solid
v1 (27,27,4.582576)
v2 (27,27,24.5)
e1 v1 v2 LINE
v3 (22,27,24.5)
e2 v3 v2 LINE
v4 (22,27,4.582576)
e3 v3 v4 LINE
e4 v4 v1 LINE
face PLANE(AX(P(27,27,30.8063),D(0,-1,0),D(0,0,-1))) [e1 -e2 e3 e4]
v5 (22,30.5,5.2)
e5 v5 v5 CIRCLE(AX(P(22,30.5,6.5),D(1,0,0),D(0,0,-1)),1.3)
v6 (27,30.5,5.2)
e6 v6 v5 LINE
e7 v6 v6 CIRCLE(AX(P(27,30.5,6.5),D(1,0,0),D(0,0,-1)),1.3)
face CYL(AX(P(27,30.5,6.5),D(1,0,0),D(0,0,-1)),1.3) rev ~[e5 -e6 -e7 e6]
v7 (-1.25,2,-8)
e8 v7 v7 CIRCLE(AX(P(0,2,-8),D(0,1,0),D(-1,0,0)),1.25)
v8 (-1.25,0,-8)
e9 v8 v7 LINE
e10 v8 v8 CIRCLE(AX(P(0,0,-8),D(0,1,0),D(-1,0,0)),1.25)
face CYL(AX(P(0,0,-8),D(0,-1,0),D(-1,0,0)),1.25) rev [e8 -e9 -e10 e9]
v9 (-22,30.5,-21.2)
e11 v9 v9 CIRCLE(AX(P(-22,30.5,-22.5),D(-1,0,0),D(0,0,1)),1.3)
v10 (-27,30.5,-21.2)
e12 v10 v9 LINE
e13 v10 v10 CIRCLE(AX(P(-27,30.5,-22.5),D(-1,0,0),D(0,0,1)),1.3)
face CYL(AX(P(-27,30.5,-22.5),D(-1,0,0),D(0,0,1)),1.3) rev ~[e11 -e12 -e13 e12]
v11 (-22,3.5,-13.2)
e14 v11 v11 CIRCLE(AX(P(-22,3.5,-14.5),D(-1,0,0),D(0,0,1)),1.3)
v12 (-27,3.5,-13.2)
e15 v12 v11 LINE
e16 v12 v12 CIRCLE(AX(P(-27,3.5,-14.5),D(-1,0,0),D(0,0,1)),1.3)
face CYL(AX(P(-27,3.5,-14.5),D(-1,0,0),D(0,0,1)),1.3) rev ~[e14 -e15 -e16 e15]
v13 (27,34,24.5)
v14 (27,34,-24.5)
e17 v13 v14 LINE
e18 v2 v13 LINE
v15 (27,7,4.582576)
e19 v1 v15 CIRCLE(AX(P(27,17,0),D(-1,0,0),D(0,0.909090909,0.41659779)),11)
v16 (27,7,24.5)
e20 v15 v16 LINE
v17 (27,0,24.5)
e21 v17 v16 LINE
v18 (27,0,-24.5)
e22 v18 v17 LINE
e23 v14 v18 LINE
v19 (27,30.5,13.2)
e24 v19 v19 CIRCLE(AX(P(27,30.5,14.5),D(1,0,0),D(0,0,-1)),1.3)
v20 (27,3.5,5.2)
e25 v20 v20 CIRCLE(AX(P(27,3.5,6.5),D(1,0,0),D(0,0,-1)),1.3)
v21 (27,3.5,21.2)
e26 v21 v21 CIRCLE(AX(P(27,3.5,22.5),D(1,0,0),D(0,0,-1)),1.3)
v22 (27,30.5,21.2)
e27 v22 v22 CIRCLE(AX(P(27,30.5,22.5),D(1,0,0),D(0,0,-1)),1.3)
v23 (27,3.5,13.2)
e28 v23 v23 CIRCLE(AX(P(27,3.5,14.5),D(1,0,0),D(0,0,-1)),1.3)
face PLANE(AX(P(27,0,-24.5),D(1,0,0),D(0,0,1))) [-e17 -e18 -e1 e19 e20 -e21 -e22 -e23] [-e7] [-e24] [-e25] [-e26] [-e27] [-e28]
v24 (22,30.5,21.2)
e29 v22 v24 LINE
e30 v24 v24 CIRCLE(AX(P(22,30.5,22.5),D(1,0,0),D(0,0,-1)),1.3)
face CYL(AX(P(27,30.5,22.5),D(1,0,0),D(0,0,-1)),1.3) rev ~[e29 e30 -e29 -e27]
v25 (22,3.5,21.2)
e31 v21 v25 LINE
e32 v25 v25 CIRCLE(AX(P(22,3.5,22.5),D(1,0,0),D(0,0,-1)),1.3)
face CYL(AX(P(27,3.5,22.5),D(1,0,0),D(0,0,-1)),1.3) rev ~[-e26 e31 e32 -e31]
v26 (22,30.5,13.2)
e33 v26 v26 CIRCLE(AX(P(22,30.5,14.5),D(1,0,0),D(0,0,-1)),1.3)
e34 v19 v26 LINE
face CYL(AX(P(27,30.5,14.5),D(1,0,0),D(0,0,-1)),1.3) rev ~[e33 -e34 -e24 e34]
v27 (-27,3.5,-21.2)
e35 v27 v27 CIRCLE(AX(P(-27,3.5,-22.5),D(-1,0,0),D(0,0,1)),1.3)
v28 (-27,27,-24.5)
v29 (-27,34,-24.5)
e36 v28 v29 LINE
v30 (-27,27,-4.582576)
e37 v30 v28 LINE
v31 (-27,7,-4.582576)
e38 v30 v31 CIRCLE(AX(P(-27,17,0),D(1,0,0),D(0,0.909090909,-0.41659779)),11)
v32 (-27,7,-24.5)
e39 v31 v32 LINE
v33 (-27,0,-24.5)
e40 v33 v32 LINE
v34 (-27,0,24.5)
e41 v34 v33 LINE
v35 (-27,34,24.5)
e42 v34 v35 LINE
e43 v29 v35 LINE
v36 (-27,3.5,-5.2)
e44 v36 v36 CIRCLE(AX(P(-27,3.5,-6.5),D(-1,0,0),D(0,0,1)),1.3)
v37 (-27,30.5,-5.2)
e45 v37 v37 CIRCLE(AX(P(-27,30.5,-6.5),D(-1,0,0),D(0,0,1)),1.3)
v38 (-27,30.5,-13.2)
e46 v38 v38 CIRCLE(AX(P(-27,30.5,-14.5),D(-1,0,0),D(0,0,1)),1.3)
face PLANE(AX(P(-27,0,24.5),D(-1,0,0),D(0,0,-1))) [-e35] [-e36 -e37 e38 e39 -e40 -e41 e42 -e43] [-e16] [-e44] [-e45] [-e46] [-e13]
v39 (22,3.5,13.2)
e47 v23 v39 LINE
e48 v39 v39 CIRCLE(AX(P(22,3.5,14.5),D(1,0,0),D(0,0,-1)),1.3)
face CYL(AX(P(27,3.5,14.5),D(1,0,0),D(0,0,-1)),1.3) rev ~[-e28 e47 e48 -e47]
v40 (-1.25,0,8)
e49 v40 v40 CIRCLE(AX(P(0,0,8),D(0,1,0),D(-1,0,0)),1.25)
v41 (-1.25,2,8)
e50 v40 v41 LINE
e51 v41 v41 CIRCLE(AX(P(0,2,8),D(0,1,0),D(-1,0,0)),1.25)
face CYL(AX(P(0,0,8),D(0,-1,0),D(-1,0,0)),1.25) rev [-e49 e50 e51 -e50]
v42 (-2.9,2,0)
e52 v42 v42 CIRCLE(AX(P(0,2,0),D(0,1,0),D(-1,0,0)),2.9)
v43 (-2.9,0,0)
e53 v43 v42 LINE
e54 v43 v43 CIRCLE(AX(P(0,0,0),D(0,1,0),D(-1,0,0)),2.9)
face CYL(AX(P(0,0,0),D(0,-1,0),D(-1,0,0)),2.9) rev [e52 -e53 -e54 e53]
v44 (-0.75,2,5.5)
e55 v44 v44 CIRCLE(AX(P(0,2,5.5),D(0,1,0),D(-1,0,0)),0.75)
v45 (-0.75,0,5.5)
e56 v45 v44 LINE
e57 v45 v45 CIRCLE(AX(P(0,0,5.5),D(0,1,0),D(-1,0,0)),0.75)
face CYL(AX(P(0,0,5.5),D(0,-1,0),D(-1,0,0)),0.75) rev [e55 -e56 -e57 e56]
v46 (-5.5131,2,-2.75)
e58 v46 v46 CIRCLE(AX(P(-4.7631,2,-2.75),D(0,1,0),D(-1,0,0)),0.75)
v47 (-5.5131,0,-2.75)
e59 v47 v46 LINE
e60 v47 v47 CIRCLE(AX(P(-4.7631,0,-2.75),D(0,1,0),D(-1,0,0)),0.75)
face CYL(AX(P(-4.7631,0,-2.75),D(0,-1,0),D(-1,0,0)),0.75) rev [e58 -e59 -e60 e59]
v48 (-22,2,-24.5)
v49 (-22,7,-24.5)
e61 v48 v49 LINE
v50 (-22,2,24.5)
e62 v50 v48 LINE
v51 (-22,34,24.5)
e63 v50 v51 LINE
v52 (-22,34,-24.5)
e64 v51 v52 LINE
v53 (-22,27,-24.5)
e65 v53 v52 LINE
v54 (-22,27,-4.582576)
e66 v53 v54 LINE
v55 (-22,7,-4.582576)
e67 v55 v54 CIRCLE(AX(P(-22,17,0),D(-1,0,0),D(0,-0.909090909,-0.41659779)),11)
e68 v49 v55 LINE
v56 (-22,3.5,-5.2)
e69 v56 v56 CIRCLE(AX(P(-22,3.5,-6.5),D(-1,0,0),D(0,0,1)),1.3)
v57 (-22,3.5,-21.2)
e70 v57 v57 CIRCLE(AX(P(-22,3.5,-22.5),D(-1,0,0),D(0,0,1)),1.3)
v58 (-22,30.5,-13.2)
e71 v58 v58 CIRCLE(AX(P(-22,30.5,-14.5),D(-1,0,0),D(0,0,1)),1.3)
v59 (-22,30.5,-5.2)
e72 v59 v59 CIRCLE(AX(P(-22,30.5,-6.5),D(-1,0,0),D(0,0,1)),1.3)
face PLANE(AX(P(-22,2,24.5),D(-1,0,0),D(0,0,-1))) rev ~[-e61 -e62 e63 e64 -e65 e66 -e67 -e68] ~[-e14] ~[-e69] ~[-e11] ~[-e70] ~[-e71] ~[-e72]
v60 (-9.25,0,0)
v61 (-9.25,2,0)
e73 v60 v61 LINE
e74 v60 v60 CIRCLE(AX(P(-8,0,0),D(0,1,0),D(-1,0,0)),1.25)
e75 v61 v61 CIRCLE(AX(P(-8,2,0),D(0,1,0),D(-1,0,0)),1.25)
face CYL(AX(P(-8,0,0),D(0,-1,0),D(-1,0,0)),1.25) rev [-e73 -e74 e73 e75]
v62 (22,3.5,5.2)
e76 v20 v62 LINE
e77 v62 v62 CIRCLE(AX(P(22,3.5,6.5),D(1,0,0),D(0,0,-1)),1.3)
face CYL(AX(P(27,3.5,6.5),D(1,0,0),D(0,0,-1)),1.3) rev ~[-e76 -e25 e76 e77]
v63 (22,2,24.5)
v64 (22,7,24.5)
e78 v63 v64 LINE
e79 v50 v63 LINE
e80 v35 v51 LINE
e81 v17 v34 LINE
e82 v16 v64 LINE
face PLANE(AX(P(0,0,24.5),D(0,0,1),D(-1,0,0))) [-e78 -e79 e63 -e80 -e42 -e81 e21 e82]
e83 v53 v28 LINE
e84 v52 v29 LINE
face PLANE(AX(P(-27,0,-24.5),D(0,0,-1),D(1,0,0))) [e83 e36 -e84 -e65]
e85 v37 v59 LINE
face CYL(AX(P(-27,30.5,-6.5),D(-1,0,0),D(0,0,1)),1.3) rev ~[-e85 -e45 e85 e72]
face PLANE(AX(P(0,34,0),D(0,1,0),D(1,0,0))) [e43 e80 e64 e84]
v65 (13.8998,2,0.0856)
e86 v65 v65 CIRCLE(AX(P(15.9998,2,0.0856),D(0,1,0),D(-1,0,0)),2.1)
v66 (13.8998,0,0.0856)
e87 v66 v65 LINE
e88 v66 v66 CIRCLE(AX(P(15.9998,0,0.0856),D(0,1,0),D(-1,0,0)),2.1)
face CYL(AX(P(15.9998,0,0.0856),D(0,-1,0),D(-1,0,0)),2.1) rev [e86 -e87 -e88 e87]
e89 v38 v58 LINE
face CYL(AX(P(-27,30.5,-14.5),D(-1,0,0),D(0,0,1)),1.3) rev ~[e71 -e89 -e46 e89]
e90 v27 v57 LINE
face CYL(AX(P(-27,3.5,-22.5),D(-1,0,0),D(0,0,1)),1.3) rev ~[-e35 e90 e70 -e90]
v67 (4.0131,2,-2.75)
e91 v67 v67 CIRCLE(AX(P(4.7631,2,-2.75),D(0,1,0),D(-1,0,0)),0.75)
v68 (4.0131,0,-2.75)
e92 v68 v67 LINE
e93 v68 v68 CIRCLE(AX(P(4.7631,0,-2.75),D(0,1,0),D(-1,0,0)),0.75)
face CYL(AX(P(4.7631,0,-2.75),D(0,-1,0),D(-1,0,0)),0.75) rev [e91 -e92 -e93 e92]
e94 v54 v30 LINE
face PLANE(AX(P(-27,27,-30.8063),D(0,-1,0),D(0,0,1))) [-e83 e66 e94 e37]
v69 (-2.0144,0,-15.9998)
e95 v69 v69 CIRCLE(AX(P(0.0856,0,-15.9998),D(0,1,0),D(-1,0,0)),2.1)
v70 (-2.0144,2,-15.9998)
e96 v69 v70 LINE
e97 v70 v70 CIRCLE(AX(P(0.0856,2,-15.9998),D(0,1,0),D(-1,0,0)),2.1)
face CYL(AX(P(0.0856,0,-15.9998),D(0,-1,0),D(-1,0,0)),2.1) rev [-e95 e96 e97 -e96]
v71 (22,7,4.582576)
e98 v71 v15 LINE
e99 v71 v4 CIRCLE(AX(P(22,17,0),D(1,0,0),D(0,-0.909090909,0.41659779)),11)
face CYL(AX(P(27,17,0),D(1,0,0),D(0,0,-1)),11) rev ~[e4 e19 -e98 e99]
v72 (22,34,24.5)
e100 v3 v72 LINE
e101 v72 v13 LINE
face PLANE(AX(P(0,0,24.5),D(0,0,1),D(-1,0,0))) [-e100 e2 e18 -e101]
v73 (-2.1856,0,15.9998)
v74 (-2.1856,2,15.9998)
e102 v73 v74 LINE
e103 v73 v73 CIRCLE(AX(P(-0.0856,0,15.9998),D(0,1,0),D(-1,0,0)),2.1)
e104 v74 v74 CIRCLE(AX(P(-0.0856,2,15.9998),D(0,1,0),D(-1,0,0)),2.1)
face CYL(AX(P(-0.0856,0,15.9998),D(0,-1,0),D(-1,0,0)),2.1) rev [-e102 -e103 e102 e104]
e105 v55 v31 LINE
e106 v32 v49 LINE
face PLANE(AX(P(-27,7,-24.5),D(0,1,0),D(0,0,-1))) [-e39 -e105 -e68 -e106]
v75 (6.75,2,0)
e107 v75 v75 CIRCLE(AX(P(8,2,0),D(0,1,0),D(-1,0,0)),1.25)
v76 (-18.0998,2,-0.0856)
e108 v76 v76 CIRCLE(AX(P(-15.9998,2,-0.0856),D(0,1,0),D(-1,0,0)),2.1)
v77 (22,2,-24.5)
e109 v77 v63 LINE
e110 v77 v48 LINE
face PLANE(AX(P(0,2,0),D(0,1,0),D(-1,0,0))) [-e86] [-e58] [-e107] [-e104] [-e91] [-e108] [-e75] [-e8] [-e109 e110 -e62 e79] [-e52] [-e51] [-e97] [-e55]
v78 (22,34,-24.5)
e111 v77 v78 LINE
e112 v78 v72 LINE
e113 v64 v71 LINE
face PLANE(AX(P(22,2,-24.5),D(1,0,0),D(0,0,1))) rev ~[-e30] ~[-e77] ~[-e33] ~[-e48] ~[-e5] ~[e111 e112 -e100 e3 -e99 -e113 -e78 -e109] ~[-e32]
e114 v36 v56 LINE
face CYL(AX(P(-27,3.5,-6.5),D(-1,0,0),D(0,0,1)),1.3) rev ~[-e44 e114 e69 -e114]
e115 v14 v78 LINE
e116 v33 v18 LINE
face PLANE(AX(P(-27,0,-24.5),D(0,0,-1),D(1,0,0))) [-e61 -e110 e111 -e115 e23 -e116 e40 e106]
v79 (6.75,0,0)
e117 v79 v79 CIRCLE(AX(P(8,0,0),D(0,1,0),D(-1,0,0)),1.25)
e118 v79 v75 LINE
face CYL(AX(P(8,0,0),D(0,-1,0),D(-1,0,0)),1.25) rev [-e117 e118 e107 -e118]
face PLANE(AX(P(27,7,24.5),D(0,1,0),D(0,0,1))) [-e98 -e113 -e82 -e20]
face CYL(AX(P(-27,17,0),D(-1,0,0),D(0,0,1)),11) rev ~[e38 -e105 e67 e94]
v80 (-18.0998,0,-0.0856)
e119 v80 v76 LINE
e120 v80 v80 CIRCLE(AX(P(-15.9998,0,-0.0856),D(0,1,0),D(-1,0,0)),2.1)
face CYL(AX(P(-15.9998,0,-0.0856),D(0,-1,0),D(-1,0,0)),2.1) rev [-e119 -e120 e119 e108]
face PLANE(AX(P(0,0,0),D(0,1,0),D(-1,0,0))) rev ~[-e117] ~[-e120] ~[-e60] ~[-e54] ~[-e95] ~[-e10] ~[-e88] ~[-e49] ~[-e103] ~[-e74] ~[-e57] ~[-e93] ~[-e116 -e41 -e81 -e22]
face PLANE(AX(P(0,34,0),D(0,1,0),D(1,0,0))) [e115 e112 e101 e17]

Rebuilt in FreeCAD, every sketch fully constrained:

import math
import FreeCAD as App
import Part
import Sketcher

V = App.Vector
Q = App.Units.Quantity


def add_polygon(sketch, points):
    """Adds a closed chain of lines whose ends are joined by coincident constraints."""
    first, n = sketch.GeometryCount, len(points)
    for a, b in zip(points, points[1:] + points[:1]):
        sketch.addGeometry(Part.LineSegment(App.Vector(*a, 0), App.Vector(*b, 0)), False)
    for i in range(n):
        sketch.addConstraint(Sketcher.Constraint("Coincident", first + i, 2, first + (i + 1) % n, 1))

doc = App.newDocument("Part")
params = doc.addObject("Spreadsheet::Sheet", "Params")
for row, (alias, value) in enumerate([
    ("sketch1_width", "54 mm"),
    ("sketch1_height", "49 mm"),
    ("sketch1_diameter", "4.2 mm"),
    ("sketch1_diameter2", "2.5 mm"),
    ("sketch1_diameter3", "1.5 mm"),
    ("pad1_length", "2 mm"),
    ("sketch2_width", "5 mm"),
    ("sketch2_height", "49 mm"),
    ("pad2_length", "32 mm"),
    ("sketch3_diameter", "2.6 mm"),
    ("sketch3_radius", "0.8 mm"),
    ("sketch3_radius2", "9.15 mm"),
    ("sketch3_radius3", "1.75 mm"),
    ("pocket1_length", "5 mm"),
    ("sketch4_diameter", "22 mm"),
    ("pocket2_length", "5 mm"),
    ("sketch5_diameter", "2.6 mm"),
    ("sketch5_radius", "0.8 mm"),
    ("sketch5_radius2", "9.15 mm"),
    ("sketch5_radius3", "1.75 mm"),
    ("pocket3_length", "5 mm"),
    ("sketch6_diameter", "22 mm"),
    ("pocket4_length", "5 mm"),
], start=1):
    params.set(f"A{row}", alias)
    params.set(f"B{row}", "=" + value)
    params.setAlias(f"B{row}", alias)

body = doc.addObject("PartDesign::Body", "Body")

sketch1 = body.newObject("Sketcher::SketchObject", "Sketch")
sketch1.AttachmentSupport = (doc.getObject("XZ_Plane"), [""])
sketch1.MapMode = "FlatFace"
add_polygon(sketch1, [(-27, -24.5), (-27, 24.5), (27, 24.5), (27, -24.5)])
sketch1.addGeometry(Part.Circle(V(0.1, -16, 0), V(0, 0, 1), 2.1), False)
sketch1.addGeometry(Part.Circle(V(8, 0, 0), V(0, 0, 1), 1.2), False)
sketch1.addGeometry(Part.Circle(V(4.8, -2.8, 0), V(0, 0, 1), 0.8), False)
sketch1.addGeometry(Part.Circle(V(0, -8, 0), V(0, 0, 1), 1.2), False)
sketch1.addGeometry(Part.Circle(V(0, 0, 0), V(0, 0, 1), 2.9), False)
sketch1.addGeometry(Part.Circle(V(-4.8, -2.8, 0), V(0, 0, 1), 0.8), False)
sketch1.addGeometry(Part.Circle(V(-8, 0, 0), V(0, 0, 1), 1.2), False)
sketch1.addGeometry(Part.Circle(V(-16, -0.1, 0), V(0, 0, 1), 2.1), False)
sketch1.addGeometry(Part.Circle(V(16, 0.1, 0), V(0, 0, 1), 2.1), False)
sketch1.addGeometry(Part.Circle(V(0, 5.5, 0), V(0, 0, 1), 0.8), False)
sketch1.addGeometry(Part.Circle(V(0, 8, 0), V(0, 0, 1), 1.2), False)
sketch1.addGeometry(Part.Circle(V(-0.1, 16, 0), V(0, 0, 1), 2.1), False)
sketch1.addConstraint([
    Sketcher.Constraint("Vertical", 0),
    Sketcher.Constraint("Horizontal", 1),
    Sketcher.Constraint("Vertical", 2),
    Sketcher.Constraint("Horizontal", 3),
    Sketcher.Constraint("Coincident", 8, 3, -1, 1),
    Sketcher.Constraint("Equal", 5, 7),
    Sketcher.Constraint("Equal", 6, 9),
    Sketcher.Constraint("Equal", 7, 10),
    Sketcher.Constraint("Equal", 4, 11),
    Sketcher.Constraint("Equal", 11, 12),
    Sketcher.Constraint("Equal", 9, 13),
    Sketcher.Constraint("Equal", 10, 14),
    Sketcher.Constraint("Equal", 12, 15),
    Sketcher.Constraint("Symmetric", 5, 3, 10, 3, -1, 1),
    Sketcher.Constraint("Symmetric", 11, 3, 12, 3, -1, 1),
    Sketcher.Constraint("Symmetric", 7, 3, 14, 3, -1, 1),
    Sketcher.Constraint("Symmetric", 4, 3, 15, 3, -1, 1),
    Sketcher.Constraint("Symmetric", 0, 2, 2, 2, -1, 1),
    Sketcher.Constraint("Symmetric", 6, 3, 9, 3, -2),
    Sketcher.Constraint("PointOnObject", 5, 3, -1),
    Sketcher.Constraint("PointOnObject", 7, 3, -2),
    Sketcher.Constraint("PointOnObject", 13, 3, -2),
    Sketcher.Constraint("DistanceX", 1, 1, 1, 2, Q("54 mm")),
    Sketcher.Constraint("DistanceY", 0, 1, 0, 2, Q("49 mm")),
    Sketcher.Constraint("Diameter", 4, Q("4.2 mm")),
    Sketcher.Constraint("Diameter", 5, Q("2.5 mm")),
    Sketcher.Constraint("Diameter", 6, Q("1.5 mm")),
    Sketcher.Constraint("Diameter", 8, Q("5.8 mm")),
    Sketcher.Constraint("DistanceX", -1, 1, 5, 3, Q("8 mm")),
    Sketcher.Constraint("DistanceY", 7, 3, -1, 1, Q("8 mm")),
    Sketcher.Constraint("DistanceY", 13, 3, 0, 2, Q("19 mm")),
    Sketcher.Constraint("DistanceY", 6, 3, -1, 1, Q("2.75 mm")),
    Sketcher.Constraint("DistanceX", -1, 1, 6, 3, Q("4.763 mm")),
    Sketcher.Constraint("DistanceX", 11, 3, 6, 3, Q("20.763 mm")),
    Sketcher.Constraint("DistanceX", -1, 1, 4, 3, Q("0.0856 mm")),
    Sketcher.Constraint("DistanceY", 4, 3, -1, 1, Q("15.9998 mm")),
    Sketcher.Constraint("DistanceY", 11, 3, -1, 1, Q("0.0856 mm")),
])
sketch1.setExpression("Constraints[26]", "Params.sketch1_width")
sketch1.setExpression("Constraints[27]", "Params.sketch1_height")
sketch1.setExpression("Constraints[28]", "Params.sketch1_diameter")
sketch1.setExpression("Constraints[29]", "Params.sketch1_diameter2")
sketch1.setExpression("Constraints[30]", "Params.sketch1_diameter3")
pad1 = body.newObject("PartDesign::Pad", "Pad")
pad1.Profile = sketch1
pad1.setExpression("Length", "Params.pad1_length")
pad1.Reversed = True

sketch2 = body.newObject("Sketcher::SketchObject", "Sketch001")
sketch2.AttachmentSupport = (doc.getObject("XZ_Plane"), [""])
sketch2.MapMode = "FlatFace"
sketch2.AttachmentOffset = App.Placement(V(0, 0, -2), App.Rotation())
add_polygon(sketch2, [(22, 24), (27, 24), (27, -24), (22, -24)])
add_polygon(sketch2, [(-27, 24), (-22, 24), (-22, -24), (-27, -24)])
sketch2.addConstraint([
    Sketcher.Constraint("Horizontal", 0),
    Sketcher.Constraint("Vertical", 1),
    Sketcher.Constraint("Horizontal", 2),
    Sketcher.Constraint("Vertical", 3),
    Sketcher.Constraint("Horizontal", 4),
    Sketcher.Constraint("Vertical", 5),
    Sketcher.Constraint("Horizontal", 6),
    Sketcher.Constraint("Vertical", 7),
    Sketcher.Constraint("Symmetric", 2, 2, 4, 2, -1, 1),
    Sketcher.Constraint("Symmetric", 0, 2, 6, 2, -1, 1),
    Sketcher.Constraint("Horizontal", 3, 2, 4, 2),
    Sketcher.Constraint("DistanceX", 0, 1, 0, 2, Q("5 mm")),
    Sketcher.Constraint("DistanceY", 1, 2, 1, 1, Q("49 mm")),
    Sketcher.Constraint("DistanceX", -1, 1, 0, 2, Q("27 mm")),
])
sketch2.setExpression("Constraints[19]", "Params.sketch2_width")
sketch2.setExpression("Constraints[20]", "Params.sketch2_height")
pad2 = body.newObject("PartDesign::Pad", "Pad001")
pad2.Profile = sketch2
pad2.setExpression("Length", "Params.pad2_length")
pad2.Reversed = True

sketch3 = body.newObject("Sketcher::SketchObject", "Sketch002")
sketch3.AttachmentSupport = (doc.getObject("YZ_Plane"), [""])
sketch3.MapMode = "FlatFace"
sketch3.AttachmentOffset = App.Placement(V(0, 0, -27), App.Rotation())
sketch3.addGeometry([
    Part.LineSegment(V(7, -30.8, 0), V(7, 0, 0)),
    Part.LineSegment(V(7, 0, 0), V(7.8, 0, 0)),
    Part.ArcOfCircle(Part.Circle(V(17, 0, 0), V(0, 0, 1), 9.2), math.radians(0), math.radians(180)),
    Part.LineSegment(V(26.1, 0, 0), V(27, 0, 0)),
    Part.LineSegment(V(27, 0, 0), V(27, -30.8, 0)),
    Part.ArcOfCircle(Part.Circle(V(26.2, -30.8, 0), V(0, 0, 1), 0.8), math.radians(-59), math.radians(0)),
    Part.ArcOfCircle(Part.Circle(V(27.5, -33, 0), V(0, 0, 1), 1.8), math.radians(121), math.radians(149)),
    Part.ArcOfCircle(Part.Circle(V(25.3, -31.7, 0), V(0, 0, 1), 0.8), math.radians(-90), math.radians(-31)),
    Part.LineSegment(V(25.3, -32.5, 0), V(8.7, -32.5, 0)),
    Part.ArcOfCircle(Part.Circle(V(8.7, -31.7, 0), V(0, 0, 1), 0.8), math.radians(-149), math.radians(-90)),
    Part.ArcOfCircle(Part.Circle(V(6.5, -33, 0), V(0, 0, 1), 1.8), math.radians(31), math.radians(59)),
    Part.ArcOfCircle(Part.Circle(V(7.8, -30.8, 0), V(0, 0, 1), 0.8), math.radians(180), math.radians(239)),
    Part.Circle(V(3.5, -22.5, 0), V(0, 0, 1), 1.3),
    Part.Circle(V(3.5, -14.5, 0), V(0, 0, 1), 1.3),
    Part.Circle(V(3.5, -6.5, 0), V(0, 0, 1), 1.3),
    Part.Circle(V(30.5, -22.5, 0), V(0, 0, 1), 1.3),
    Part.Circle(V(30.5, -14.5, 0), V(0, 0, 1), 1.3),
    Part.Circle(V(30.5, -6.5, 0), V(0, 0, 1), 1.3),
], False)
sketch3.addConstraint([
    Sketcher.Constraint("Coincident", 0, 2, 1, 1),
    Sketcher.Constraint("Coincident", 1, 2, 2, 2),
    Sketcher.Constraint("Coincident", 2, 1, 3, 1),
    Sketcher.Constraint("Coincident", 3, 2, 4, 1),
    Sketcher.Constraint("Tangent", 4, 2, 5, 2),
    Sketcher.Constraint("Tangent", 5, 1, 6, 1),
    Sketcher.Constraint("Tangent", 6, 2, 7, 2),
    Sketcher.Constraint("Tangent", 7, 1, 8, 1),
    Sketcher.Constraint("Tangent", 8, 2, 9, 2),
    Sketcher.Constraint("Tangent", 9, 1, 10, 1),
    Sketcher.Constraint("Tangent", 10, 2, 11, 2),
    Sketcher.Constraint("Tangent", 11, 1, 0, 1),
    Sketcher.Constraint("Vertical", 0),
    Sketcher.Constraint("Horizontal", 1),
    Sketcher.Constraint("Horizontal", 3),
    Sketcher.Constraint("Vertical", 4),
    Sketcher.Constraint("Horizontal", 8),
    Sketcher.Constraint("Equal", 5, 7),
    Sketcher.Constraint("Equal", 7, 9),
    Sketcher.Constraint("Equal", 6, 10),
    Sketcher.Constraint("Equal", 9, 11),
    Sketcher.Constraint("Equal", 12, 13),
    Sketcher.Constraint("Equal", 13, 14),
    Sketcher.Constraint("Equal", 14, 15),
    Sketcher.Constraint("Equal", 15, 16),
    Sketcher.Constraint("Equal", 16, 17),
    Sketcher.Constraint("PointOnObject", 2, 3, -1),
    Sketcher.Constraint("PointOnObject", 0, 2, -1),
    Sketcher.Constraint("PointOnObject", 2, 1, -1),
    Sketcher.Constraint("Horizontal", 6, 3, 10, 3),
    Sketcher.Constraint("Horizontal", 5, 3, 11, 3),
    Sketcher.Constraint("Horizontal", 12, 3, 15, 3),
    Sketcher.Constraint("Horizontal", 13, 3, 16, 3),
    Sketcher.Constraint("Horizontal", 14, 3, 17, 3),
    Sketcher.Constraint("Vertical", 12, 3, 13, 3),
    Sketcher.Constraint("Vertical", 13, 3, 14, 3),
    Sketcher.Constraint("Vertical", 15, 3, 16, 3),
    Sketcher.Constraint("Vertical", 16, 3, 17, 3),
    Sketcher.Constraint("Equal", 1, 3),
    Sketcher.Constraint("DistanceX", -1, 1, 2, 3, Q("17 mm")),
    Sketcher.Constraint("Diameter", 12, Q("2.6 mm")),
    Sketcher.Constraint("Radius", 5, Q("0.8 mm")),
    Sketcher.Constraint("Radius", 2, Q("9.15 mm")),
    Sketcher.Constraint("Radius", 6, Q("1.75 mm")),
    Sketcher.Constraint("DistanceY", 6, 3, -1, 1, Q("33 mm")),
    Sketcher.Constraint("DistanceX", -1, 1, 0, 2, Q("7 mm")),
    Sketcher.Constraint("DistanceX", 10, 3, 6, 3, Q("21 mm")),
    Sketcher.Constraint("DistanceX", 12, 3, 10, 3, Q("3 mm")),
    Sketcher.Constraint("DistanceY", 12, 3, 13, 3, Q("8 mm")),
    Sketcher.Constraint("DistanceY", 13, 3, 14, 3, Q("8 mm")),
    Sketcher.Constraint("DistanceX", 6, 3, 15, 3, Q("3 mm")),
    Sketcher.Constraint("DistanceY", 8, 2, 12, 3, Q("10 mm")),
    Sketcher.Constraint("DistanceY", 7, 3, -1, 1, Q("31.7 mm")),
])
sketch3.setExpression("Constraints[40]", "Params.sketch3_diameter")
sketch3.setExpression("Constraints[41]", "Params.sketch3_radius")
sketch3.setExpression("Constraints[42]", "Params.sketch3_radius2")
sketch3.setExpression("Constraints[43]", "Params.sketch3_radius3")
pocket1 = body.newObject("PartDesign::Pocket", "Pocket")
pocket1.Profile = sketch3
pocket1.setExpression("Length", "Params.pocket1_length")
pocket1.Reversed = True

sketch4 = body.newObject("Sketcher::SketchObject", "Sketch003")
sketch4.AttachmentSupport = (doc.getObject("YZ_Plane"), [""])
sketch4.MapMode = "FlatFace"
sketch4.AttachmentOffset = App.Placement(V(0, 0, -27), App.Rotation())
sketch4.addGeometry(Part.Circle(V(17, 0, 0), V(0, 0, 1), 11), False)
sketch4.addConstraint([
    Sketcher.Constraint("PointOnObject", 0, 3, -1),
    Sketcher.Constraint("Diameter", 0, Q("22 mm")),
    Sketcher.Constraint("DistanceX", -1, 1, 0, 3, Q("17 mm")),
])
sketch4.setExpression("Constraints[1]", "Params.sketch4_diameter")
pocket2 = body.newObject("PartDesign::Pocket", "Pocket001")
pocket2.Profile = sketch4
pocket2.setExpression("Length", "Params.pocket2_length")
pocket2.Reversed = True

sketch5 = body.newObject("Sketcher::SketchObject", "Sketch004")
sketch5.AttachmentSupport = (doc.getObject("YZ_Plane"), [""])
sketch5.MapMode = "FlatFace"
sketch5.AttachmentOffset = App.Placement(V(0, 0, 27), App.Rotation())
sketch5.addGeometry([
    Part.LineSegment(V(7, 30.8, 0), V(7, 0, 0)),
    Part.LineSegment(V(7, 0, 0), V(7.8, 0, 0)),
    Part.ArcOfCircle(Part.Circle(V(17, 0, 0), V(0, 0, 1), 9.2), math.radians(180), math.radians(360)),
    Part.LineSegment(V(26.1, 0, 0), V(27, 0, 0)),
    Part.LineSegment(V(27, 0, 0), V(27, 30.8, 0)),
    Part.ArcOfCircle(Part.Circle(V(26.2, 30.8, 0), V(0, 0, 1), 0.8), math.radians(0), math.radians(59)),
    Part.ArcOfCircle(Part.Circle(V(27.5, 33, 0), V(0, 0, 1), 1.8), math.radians(-149), math.radians(-121)),
    Part.ArcOfCircle(Part.Circle(V(25.3, 31.7, 0), V(0, 0, 1), 0.8), math.radians(31), math.radians(90)),
    Part.LineSegment(V(25.3, 32.5, 0), V(8.7, 32.5, 0)),
    Part.ArcOfCircle(Part.Circle(V(8.7, 31.7, 0), V(0, 0, 1), 0.8), math.radians(90), math.radians(149)),
    Part.ArcOfCircle(Part.Circle(V(6.5, 33, 0), V(0, 0, 1), 1.8), math.radians(-59), math.radians(-31)),
    Part.ArcOfCircle(Part.Circle(V(7.8, 30.8, 0), V(0, 0, 1), 0.8), math.radians(121), math.radians(180)),
    Part.Circle(V(3.5, 22.5, 0), V(0, 0, 1), 1.3),
    Part.Circle(V(3.5, 14.5, 0), V(0, 0, 1), 1.3),
    Part.Circle(V(3.5, 6.5, 0), V(0, 0, 1), 1.3),
    Part.Circle(V(30.5, 22.5, 0), V(0, 0, 1), 1.3),
    Part.Circle(V(30.5, 14.5, 0), V(0, 0, 1), 1.3),
    Part.Circle(V(30.5, 6.5, 0), V(0, 0, 1), 1.3),
], False)
sketch5.addConstraint([
    Sketcher.Constraint("Coincident", 0, 2, 1, 1),
    Sketcher.Constraint("Coincident", 1, 2, 2, 1),
    Sketcher.Constraint("Coincident", 2, 2, 3, 1),
    Sketcher.Constraint("Coincident", 3, 2, 4, 1),
    Sketcher.Constraint("Tangent", 4, 2, 5, 1),
    Sketcher.Constraint("Tangent", 5, 2, 6, 2),
    Sketcher.Constraint("Tangent", 6, 1, 7, 1),
    Sketcher.Constraint("Tangent", 7, 2, 8, 1),
    Sketcher.Constraint("Tangent", 8, 2, 9, 1),
    Sketcher.Constraint("Tangent", 9, 2, 10, 2),
    Sketcher.Constraint("Tangent", 10, 1, 11, 1),
    Sketcher.Constraint("Tangent", 11, 2, 0, 1),
    Sketcher.Constraint("Vertical", 0),
    Sketcher.Constraint("Horizontal", 1),
    Sketcher.Constraint("Horizontal", 3),
    Sketcher.Constraint("Vertical", 4),
    Sketcher.Constraint("Horizontal", 8),
    Sketcher.Constraint("Equal", 5, 7),
    Sketcher.Constraint("Equal", 7, 9),
    Sketcher.Constraint("Equal", 6, 10),
    Sketcher.Constraint("Equal", 9, 11),
    Sketcher.Constraint("Equal", 12, 13),
    Sketcher.Constraint("Equal", 13, 14),
    Sketcher.Constraint("Equal", 14, 15),
    Sketcher.Constraint("Equal", 15, 16),
    Sketcher.Constraint("Equal", 16, 17),
    Sketcher.Constraint("PointOnObject", 2, 3, -1),
    Sketcher.Constraint("PointOnObject", 0, 2, -1),
    Sketcher.Constraint("PointOnObject", 2, 2, -1),
    Sketcher.Constraint("Horizontal", 6, 3, 10, 3),
    Sketcher.Constraint("Horizontal", 5, 3, 11, 3),
    Sketcher.Constraint("Horizontal", 12, 3, 15, 3),
    Sketcher.Constraint("Horizontal", 13, 3, 16, 3),
    Sketcher.Constraint("Horizontal", 14, 3, 17, 3),
    Sketcher.Constraint("Vertical", 12, 3, 13, 3),
    Sketcher.Constraint("Vertical", 13, 3, 14, 3),
    Sketcher.Constraint("Vertical", 15, 3, 16, 3),
    Sketcher.Constraint("Vertical", 16, 3, 17, 3),
    Sketcher.Constraint("Equal", 1, 3),
    Sketcher.Constraint("DistanceX", -1, 1, 2, 3, Q("17 mm")),
    Sketcher.Constraint("Diameter", 12, Q("2.6 mm")),
    Sketcher.Constraint("Radius", 5, Q("0.8 mm")),
    Sketcher.Constraint("Radius", 2, Q("9.15 mm")),
    Sketcher.Constraint("Radius", 6, Q("1.75 mm")),
    Sketcher.Constraint("DistanceY", -1, 1, 6, 3, Q("33 mm")),
    Sketcher.Constraint("DistanceX", -1, 1, 0, 2, Q("7 mm")),
    Sketcher.Constraint("DistanceX", 10, 3, 6, 3, Q("21 mm")),
    Sketcher.Constraint("DistanceX", 12, 3, 10, 3, Q("3 mm")),
    Sketcher.Constraint("DistanceY", 13, 3, 12, 3, Q("8 mm")),
    Sketcher.Constraint("DistanceY", 14, 3, 13, 3, Q("8 mm")),
    Sketcher.Constraint("DistanceX", 6, 3, 15, 3, Q("3 mm")),
    Sketcher.Constraint("DistanceY", 12, 3, 8, 2, Q("10 mm")),
    Sketcher.Constraint("DistanceY", -1, 1, 7, 3, Q("31.7 mm")),
])
sketch5.setExpression("Constraints[40]", "Params.sketch5_diameter")
sketch5.setExpression("Constraints[41]", "Params.sketch5_radius")
sketch5.setExpression("Constraints[42]", "Params.sketch5_radius2")
sketch5.setExpression("Constraints[43]", "Params.sketch5_radius3")
pocket3 = body.newObject("PartDesign::Pocket", "Pocket002")
pocket3.Profile = sketch5
pocket3.setExpression("Length", "Params.pocket3_length")

sketch6 = body.newObject("Sketcher::SketchObject", "Sketch005")
sketch6.AttachmentSupport = (doc.getObject("YZ_Plane"), [""])
sketch6.MapMode = "FlatFace"
sketch6.AttachmentOffset = App.Placement(V(0, 0, 27), App.Rotation())
sketch6.addGeometry(Part.Circle(V(17, 0, 0), V(0, 0, 1), 11), False)
sketch6.addConstraint([
    Sketcher.Constraint("PointOnObject", 0, 3, -1),
    Sketcher.Constraint("Diameter", 0, Q("22 mm")),
    Sketcher.Constraint("DistanceX", -1, 1, 0, 3, Q("17 mm")),
])
sketch6.setExpression("Constraints[1]", "Params.sketch6_diameter")
pocket4 = body.newObject("PartDesign::Pocket", "Pocket003")
pocket4.Profile = sketch6
pocket4.setExpression("Length", "Params.pocket4_length")

doc.recompute()
